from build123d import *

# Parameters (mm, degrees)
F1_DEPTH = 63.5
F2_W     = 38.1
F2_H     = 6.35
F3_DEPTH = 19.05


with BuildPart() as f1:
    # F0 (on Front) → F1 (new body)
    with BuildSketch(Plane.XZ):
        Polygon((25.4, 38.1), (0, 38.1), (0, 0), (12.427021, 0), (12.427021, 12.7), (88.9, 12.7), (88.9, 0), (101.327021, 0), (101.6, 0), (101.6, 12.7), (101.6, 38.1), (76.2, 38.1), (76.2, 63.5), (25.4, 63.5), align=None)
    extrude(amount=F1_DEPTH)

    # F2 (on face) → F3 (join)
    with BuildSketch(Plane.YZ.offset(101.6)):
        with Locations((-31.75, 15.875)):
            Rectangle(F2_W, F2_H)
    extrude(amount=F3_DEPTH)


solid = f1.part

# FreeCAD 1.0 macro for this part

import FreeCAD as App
import Part
import Sketcher
from FreeCAD import Vector
Q = App.Units.Quantity


def add_polygon(sketch, points):
    """Adds a closed chain of lines whose ends are joined by coincident constraints."""
    first, n = sketch.GeometryCount, len(points)
    for a, b in zip(points, points[1:] + points[:1]):
        sketch.addGeometry(Part.LineSegment(App.Vector(*a, 0), App.Vector(*b, 0)), False)
    for i in range(n):
        sketch.addConstraint(Sketcher.Constraint("Coincident", first + i, 2, first + (i + 1) % n, 1))

doc = App.newDocument("Part")
params = doc.addObject("Spreadsheet::Sheet", "Params")
for row, (alias, value) in enumerate([
    ("sketch1_width", "1 in"),
    ("sketch1_width2", "2 in"),
    ("sketch1_width3", "0.5 in"),
    ("sketch1_height", "1.5 in"),
    ("pad1_length", "2.5 in"),
    ("sketch2_width", "1.5 in"),
    ("sketch2_height", "0.25 in"),
    ("pad2_length", "0.75 in"),
], start=1):
    params.set(f"A{row}", alias)
    params.set(f"B{row}", "=" + value)
    params.setAlias(f"B{row}", alias)

body = doc.addObject("PartDesign::Body", "Body")

# Sketch on XZ plane
sketch1 = doc.addObject("Sketcher::SketchObject", "Sketch")
body.addObject(sketch1)
sketch1.AttachmentSupport = (doc.XZ_Plane, [""])
sketch1.MapMode = "FlatFace"
add_polygon(sketch1, [(25, 38), (0, 38), (0, 0), (12, 0), (12, 13), (89, 13), (89, 0), (102, 0), (102, 38), (76, 38), (76, 64), (25, 64)])  # lines 0-11
sketch1.addConstraint([
    Sketcher.Constraint("Horizontal", 0),
    Sketcher.Constraint("Vertical", 1),
    Sketcher.Constraint("Horizontal", 2),
    Sketcher.Constraint("Vertical", 3),
    Sketcher.Constraint("Horizontal", 4),
    Sketcher.Constraint("Vertical", 5),
    Sketcher.Constraint("Horizontal", 6),
    Sketcher.Constraint("Vertical", 7),
    Sketcher.Constraint("Horizontal", 8),
    Sketcher.Constraint("Vertical", 9),
    Sketcher.Constraint("Horizontal", 10),
    Sketcher.Constraint("Vertical", 11),
    Sketcher.Constraint("Coincident", 1, 2, -1, 1),
    Sketcher.Constraint("PointOnObject", 5, 2, -1),
    Sketcher.Constraint("Horizontal", 0, 2, 7, 2),
    Sketcher.Constraint("Equal", 0, 8),
    Sketcher.Constraint("Equal", 6, 3),
    Sketcher.Constraint("Equal", 8, 9),
    Sketcher.Constraint("DistanceX", 0, 2, 0, 1, Q("1 in")),
    Sketcher.Constraint("DistanceX", 10, 2, 10, 1, Q("2 in")),
    Sketcher.Constraint("DistanceX", 6, 1, 6, 2, Q("0.5 in")),
    Sketcher.Constraint("DistanceY", 1, 2, 1, 1, Q("1.5 in")),
    Sketcher.Constraint("DistanceX", 2, 1, 2, 2, Q("12.427021 mm")),
])
sketch1.setExpression("Constraints[30]", "Params.sketch1_width")
sketch1.setExpression("Constraints[31]", "Params.sketch1_width2")
sketch1.setExpression("Constraints[32]", "Params.sketch1_width3")
sketch1.setExpression("Constraints[33]", "Params.sketch1_height")
pad1 = doc.addObject("PartDesign::Pad", "Pad")
body.addObject(pad1)
pad1.Profile = sketch1
pad1.setExpression("Length", "Params.pad1_length")

# Sketch on YZ plane
sketch2 = doc.addObject("Sketcher::SketchObject", "Sketch001")
body.addObject(sketch2)
sketch2.AttachmentSupport = (doc.YZ_Plane, [""])
sketch2.MapMode = "FlatFace"
sketch2.AttachmentOffset = App.Placement(Vector(0, 0, 4 * 25.4), App.Rotation())
add_polygon(sketch2, [(-51, 19), (-51, 13), (-13, 13), (-13, 19)])  # lines 0-3
sketch2.addConstraint([
    Sketcher.Constraint("Vertical", 0),
    Sketcher.Constraint("Horizontal", 1),
    Sketcher.Constraint("Vertical", 2),
    Sketcher.Constraint("Horizontal", 3),
    Sketcher.Constraint("DistanceX", 1, 1, 1, 2, Q("1.5 in")),
    Sketcher.Constraint("DistanceX", 0, 2, -1, 1, Q("2 in")),
    Sketcher.Constraint("DistanceY", 0, 2, 0, 1, Q("0.25 in")),
    Sketcher.Constraint("DistanceY", -1, 1, 0, 2, Q("0.5 in")),
])
sketch2.setExpression("Constraints[8]", "Params.sketch2_width")
sketch2.setExpression("Constraints[10]", "Params.sketch2_height")
pad2 = doc.addObject("PartDesign::Pad", "Pad001")
body.addObject(pad2)
pad2.Profile = sketch2
pad2.setExpression("Length", "Params.pad2_length")

doc.recompute()
